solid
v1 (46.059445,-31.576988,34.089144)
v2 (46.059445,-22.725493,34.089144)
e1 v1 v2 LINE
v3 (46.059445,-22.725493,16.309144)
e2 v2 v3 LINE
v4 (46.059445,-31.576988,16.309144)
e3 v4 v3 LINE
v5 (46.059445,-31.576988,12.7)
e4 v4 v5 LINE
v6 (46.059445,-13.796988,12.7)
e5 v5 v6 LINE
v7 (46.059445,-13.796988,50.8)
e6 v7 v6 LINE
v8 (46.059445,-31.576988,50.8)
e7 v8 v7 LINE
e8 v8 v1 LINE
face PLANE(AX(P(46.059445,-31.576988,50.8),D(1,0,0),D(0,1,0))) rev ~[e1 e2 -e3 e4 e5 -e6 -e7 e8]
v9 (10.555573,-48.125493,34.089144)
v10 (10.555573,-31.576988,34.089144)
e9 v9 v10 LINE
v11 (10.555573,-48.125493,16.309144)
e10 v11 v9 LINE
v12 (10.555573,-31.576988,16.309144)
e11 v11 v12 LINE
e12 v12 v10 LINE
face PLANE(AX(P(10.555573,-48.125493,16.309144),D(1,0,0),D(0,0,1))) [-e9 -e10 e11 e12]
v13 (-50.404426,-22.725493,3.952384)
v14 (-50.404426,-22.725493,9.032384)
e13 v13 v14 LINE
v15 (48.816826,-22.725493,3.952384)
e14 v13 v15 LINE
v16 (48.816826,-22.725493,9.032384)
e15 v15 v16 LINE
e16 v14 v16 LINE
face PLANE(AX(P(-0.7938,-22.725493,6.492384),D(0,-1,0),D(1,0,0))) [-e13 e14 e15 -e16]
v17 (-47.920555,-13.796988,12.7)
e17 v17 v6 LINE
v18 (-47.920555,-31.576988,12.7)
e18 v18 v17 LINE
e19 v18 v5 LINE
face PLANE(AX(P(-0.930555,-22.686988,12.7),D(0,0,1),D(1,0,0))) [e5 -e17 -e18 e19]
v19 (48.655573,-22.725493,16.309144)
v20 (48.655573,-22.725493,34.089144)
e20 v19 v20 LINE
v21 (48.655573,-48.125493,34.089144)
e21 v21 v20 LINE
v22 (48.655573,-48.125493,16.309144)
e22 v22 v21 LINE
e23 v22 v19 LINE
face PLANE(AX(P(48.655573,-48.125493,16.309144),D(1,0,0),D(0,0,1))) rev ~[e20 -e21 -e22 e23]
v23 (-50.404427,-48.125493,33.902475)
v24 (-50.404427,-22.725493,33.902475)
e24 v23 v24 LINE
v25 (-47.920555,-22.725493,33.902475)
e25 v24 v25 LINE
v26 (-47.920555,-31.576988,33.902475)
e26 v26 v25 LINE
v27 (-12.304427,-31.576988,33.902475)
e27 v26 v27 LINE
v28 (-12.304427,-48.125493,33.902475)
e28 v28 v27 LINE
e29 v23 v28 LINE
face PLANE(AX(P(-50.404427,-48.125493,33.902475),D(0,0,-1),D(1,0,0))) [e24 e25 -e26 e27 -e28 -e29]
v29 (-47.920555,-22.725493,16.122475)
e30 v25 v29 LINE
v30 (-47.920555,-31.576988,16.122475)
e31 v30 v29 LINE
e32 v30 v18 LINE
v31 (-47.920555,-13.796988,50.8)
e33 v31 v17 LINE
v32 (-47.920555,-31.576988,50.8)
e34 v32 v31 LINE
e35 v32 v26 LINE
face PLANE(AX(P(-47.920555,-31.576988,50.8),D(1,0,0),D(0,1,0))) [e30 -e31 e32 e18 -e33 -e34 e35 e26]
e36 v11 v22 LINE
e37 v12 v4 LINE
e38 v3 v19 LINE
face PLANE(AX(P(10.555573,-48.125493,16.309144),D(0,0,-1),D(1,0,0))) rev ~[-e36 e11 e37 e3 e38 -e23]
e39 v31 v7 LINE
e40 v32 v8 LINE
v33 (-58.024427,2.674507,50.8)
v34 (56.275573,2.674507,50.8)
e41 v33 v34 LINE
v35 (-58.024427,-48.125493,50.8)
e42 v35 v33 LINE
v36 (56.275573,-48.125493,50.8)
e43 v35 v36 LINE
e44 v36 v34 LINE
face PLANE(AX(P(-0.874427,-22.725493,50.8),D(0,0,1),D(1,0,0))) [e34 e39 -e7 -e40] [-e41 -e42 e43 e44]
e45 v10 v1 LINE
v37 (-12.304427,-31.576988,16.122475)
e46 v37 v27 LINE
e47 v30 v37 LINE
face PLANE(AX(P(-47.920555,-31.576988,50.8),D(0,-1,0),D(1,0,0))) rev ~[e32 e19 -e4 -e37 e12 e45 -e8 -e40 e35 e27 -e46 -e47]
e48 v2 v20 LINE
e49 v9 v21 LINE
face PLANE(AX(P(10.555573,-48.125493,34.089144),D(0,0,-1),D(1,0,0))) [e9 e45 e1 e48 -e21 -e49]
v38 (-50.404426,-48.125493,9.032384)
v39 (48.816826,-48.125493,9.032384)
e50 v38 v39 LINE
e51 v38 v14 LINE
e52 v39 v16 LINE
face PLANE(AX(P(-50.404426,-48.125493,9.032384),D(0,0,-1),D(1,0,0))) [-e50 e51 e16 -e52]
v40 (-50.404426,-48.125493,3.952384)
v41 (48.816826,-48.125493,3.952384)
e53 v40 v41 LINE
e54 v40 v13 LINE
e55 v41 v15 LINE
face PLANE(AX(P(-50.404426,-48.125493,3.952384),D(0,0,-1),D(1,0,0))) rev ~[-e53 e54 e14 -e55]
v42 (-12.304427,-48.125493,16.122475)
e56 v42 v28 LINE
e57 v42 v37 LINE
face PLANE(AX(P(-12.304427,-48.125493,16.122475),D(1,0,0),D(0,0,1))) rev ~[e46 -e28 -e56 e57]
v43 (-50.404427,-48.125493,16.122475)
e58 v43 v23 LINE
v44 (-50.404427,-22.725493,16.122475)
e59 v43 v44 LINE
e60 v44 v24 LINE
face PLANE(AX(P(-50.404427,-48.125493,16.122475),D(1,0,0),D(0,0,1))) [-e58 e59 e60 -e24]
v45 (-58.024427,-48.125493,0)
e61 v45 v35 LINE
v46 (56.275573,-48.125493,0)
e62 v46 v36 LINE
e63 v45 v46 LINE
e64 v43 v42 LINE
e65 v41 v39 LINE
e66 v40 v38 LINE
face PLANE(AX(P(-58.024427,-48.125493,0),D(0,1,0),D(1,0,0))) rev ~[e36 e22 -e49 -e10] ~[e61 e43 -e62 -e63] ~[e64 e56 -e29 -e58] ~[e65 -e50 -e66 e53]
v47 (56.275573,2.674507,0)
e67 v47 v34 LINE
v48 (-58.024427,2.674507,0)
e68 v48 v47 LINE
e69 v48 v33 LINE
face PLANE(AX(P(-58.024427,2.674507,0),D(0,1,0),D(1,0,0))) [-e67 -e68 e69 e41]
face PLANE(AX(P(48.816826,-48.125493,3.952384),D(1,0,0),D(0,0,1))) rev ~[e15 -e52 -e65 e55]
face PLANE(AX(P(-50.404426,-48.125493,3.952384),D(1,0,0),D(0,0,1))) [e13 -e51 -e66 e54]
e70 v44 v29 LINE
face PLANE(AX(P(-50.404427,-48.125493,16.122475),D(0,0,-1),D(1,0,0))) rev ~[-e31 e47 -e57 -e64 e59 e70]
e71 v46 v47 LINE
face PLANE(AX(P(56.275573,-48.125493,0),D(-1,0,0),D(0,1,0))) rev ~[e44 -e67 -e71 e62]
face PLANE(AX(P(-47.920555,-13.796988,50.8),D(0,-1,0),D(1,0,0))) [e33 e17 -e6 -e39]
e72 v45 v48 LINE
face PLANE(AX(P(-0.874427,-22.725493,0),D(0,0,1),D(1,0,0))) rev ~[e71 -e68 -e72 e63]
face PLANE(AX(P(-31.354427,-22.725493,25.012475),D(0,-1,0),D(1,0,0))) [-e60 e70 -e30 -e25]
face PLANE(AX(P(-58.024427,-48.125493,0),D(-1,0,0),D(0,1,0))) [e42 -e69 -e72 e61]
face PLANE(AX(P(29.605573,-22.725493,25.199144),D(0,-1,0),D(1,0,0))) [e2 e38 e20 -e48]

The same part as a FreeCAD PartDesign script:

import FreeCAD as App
import Part
import Sketcher
from FreeCAD import Vector
Q = App.Units.Quantity


def add_polygon(sketch, points):
    """Adds a closed chain of lines whose ends are joined by coincident constraints."""
    first, n = sketch.GeometryCount, len(points)
    for a, b in zip(points, points[1:] + points[:1]):
        sketch.addGeometry(Part.LineSegment(App.Vector(*a, 0), App.Vector(*b, 0)), False)
    for i in range(n):
        sketch.addConstraint(Sketcher.Constraint("Coincident", first + i, 2, first + (i + 1) % n, 1))

doc = App.newDocument("Part")
params = doc.addObject("Spreadsheet::Sheet", "Params")
for row, (alias, value) in enumerate([
    ("sketch1_height", "2 in"),
    ("sketch1_width", "4.5 in"),
    ("pad1_length", "2 in"),
    ("sketch2_width", "3.7 in"),
    ("sketch2_height", "0.7 in"),
    ("pocket1_length", "1.5 in"),
    ("sketch3_width", "1.5 in"),
    ("sketch3_height", "0.7 in"),
    ("sketch3_height2", "0.2 in"),
    ("pocket2_length", "1 in"),
    ("sketch4_width", "1.5 in"),
    ("sketch4_height", "0.7 in"),
    ("sketch4_height2", "0.2 in"),
    ("pocket3_length", "1 in"),
], start=1):
    params.set(f"A{row}", alias)
    params.set(f"B{row}", "=" + value)
    params.setAlias(f"B{row}", alias)

body = doc.addObject("PartDesign::Body", "Body")

# Sketch on XY plane
sketch1 = body.newObject("Sketcher::SketchObject", "Sketch")
sketch1.AttachmentSupport = (doc.getObject("XY_Plane"), [""])
sketch1.MapMode = "FlatFace"
add_polygon(sketch1, [(-58, 3), (-58, -48), (56, -48), (56, 3)])  # lines 0-3
sketch1.addConstraint([
    Sketcher.Constraint("Vertical", 0),
    Sketcher.Constraint("Horizontal", 1),
    Sketcher.Constraint("Vertical", 2),
    Sketcher.Constraint("Horizontal", 3),
    Sketcher.Constraint("DistanceY", 0, 2, 0, 1, Q("2 in")),
    Sketcher.Constraint("DistanceX", 1, 1, 1, 2, Q("4.5 in")),
    Sketcher.Constraint("DistanceX", 0, 2, -1, 1, 58.024427),
    Sketcher.Constraint("DistanceY", 0, 2, -1, 1, 48.125493),
])
sketch1.setExpression("Constraints[8]", "Params.sketch1_height")
sketch1.setExpression("Constraints[9]", "Params.sketch1_width")
pad1 = body.newObject("PartDesign::Pad", "Pad")
pad1.Profile = sketch1
pad1.setExpression("Length", "Params.pad1_length")

# Sketch on XY plane
sketch2 = body.newObject("Sketcher::SketchObject", "Sketch001")
sketch2.AttachmentSupport = (doc.getObject("XY_Plane"), [""])
sketch2.MapMode = "FlatFace"
sketch2.AttachmentOffset = App.Placement(Vector(0, 0, 2 * 25.4), App.Rotation())
add_polygon(sketch2, [(-48, -14), (-48, -32), (46, -32), (46, -14)])  # lines 0-3
sketch2.addConstraint([
    Sketcher.Constraint("Vertical", 0),
    Sketcher.Constraint("Horizontal", 1),
    Sketcher.Constraint("Vertical", 2),
    Sketcher.Constraint("Horizontal", 3),
    Sketcher.Constraint("DistanceX", 1, 1, 1, 2, Q("3.7 in")),
    Sketcher.Constraint("DistanceY", 0, 2, 0, 1, Q("0.7 in")),
    Sketcher.Constraint("DistanceY", 0, 2, -1, 1, 31.576988),
    Sketcher.Constraint("DistanceX", 0, 2, -1, 1, 47.920555),
])
sketch2.setExpression("Constraints[8]", "Params.sketch2_width")
sketch2.setExpression("Constraints[9]", "Params.sketch2_height")
pocket1 = body.newObject("PartDesign::Pocket", "Pocket")
pocket1.Profile = sketch2
pocket1.setExpression("Length", "Params.pocket1_length")

# Sketch on XZ plane
sketch3 = body.newObject("Sketcher::SketchObject", "Sketch002")
sketch3.AttachmentSupport = (doc.getObject("XZ_Plane"), [""])
sketch3.MapMode = "FlatFace"
sketch3.AttachmentOffset = App.Placement(Vector(0, 0, 48.125493), App.Rotation())
add_polygon(sketch3, [(11, 34), (11, 16), (49, 16), (49, 34)])  # lines 0-3
add_polygon(sketch3, [(-50, 34), (-50, 16), (-12, 16), (-12, 34)])  # lines 4-7
add_polygon(sketch3, [(-50, 9), (-50, 4), (49, 4), (49, 9)])  # lines 8-11
sketch3.addConstraint([
    Sketcher.Constraint("Vertical", 0),
    Sketcher.Constraint("Horizontal", 1),
    Sketcher.Constraint("Vertical", 2),
    Sketcher.Constraint("Horizontal", 3),
    Sketcher.Constraint("Vertical", 4),
    Sketcher.Constraint("Horizontal", 5),
    Sketcher.Constraint("Vertical", 6),
    Sketcher.Constraint("Horizontal", 7),
    Sketcher.Constraint("Vertical", 8),
    Sketcher.Constraint("Horizontal", 9),
    Sketcher.Constraint("Vertical", 10),
    Sketcher.Constraint("Horizontal", 11),
    Sketcher.Constraint("Vertical", 7, 2, 8, 2),
    Sketcher.Constraint("Equal", 3, 5),
    Sketcher.Constraint("Equal", 2, 4),
    Sketcher.Constraint("DistanceX", 1, 1, 1, 2, Q("1.5 in")),
    Sketcher.Constraint("DistanceY", 0, 2, 0, 1, Q("0.7 in")),
    Sketcher.Constraint("DistanceY", 8, 2, 8, 1, Q("0.2 in")),
    Sketcher.Constraint("DistanceX", 4, 2, 0, 2, Q("2.4 in")),
    Sketcher.Constraint("DistanceX", 9, 1, 9, 2, 99.221253),
    Sketcher.Constraint("DistanceY", 4, 2, 0, 2, 0.186669),
    Sketcher.Constraint("DistanceY", 8, 2, 4, 2, 12.170091),
    Sketcher.Constraint("DistanceX", -1, 1, 0, 2, 10.555573),
    Sketcher.Constraint("DistanceY", -1, 1, 0, 2, 16.309144),
])
sketch3.setExpression("Constraints[27]", "Params.sketch3_width")
sketch3.setExpression("Constraints[28]", "Params.sketch3_height")
sketch3.setExpression("Constraints[29]", "Params.sketch3_height2")
pocket2 = body.newObject("PartDesign::Pocket", "Pocket001")
pocket2.Profile = sketch3
pocket2.setExpression("Length", "Params.pocket2_length")

# Sketch on XZ plane
sketch4 = body.newObject("Sketcher::SketchObject", "Sketch003")
sketch4.AttachmentSupport = (doc.getObject("XZ_Plane"), [""])
sketch4.MapMode = "FlatFace"
sketch4.AttachmentOffset = App.Placement(Vector(0, 0, 48.125493), App.Rotation())
add_polygon(sketch4, [(11, 34), (11, 16), (49, 16), (49, 34)])  # lines 0-3
add_polygon(sketch4, [(-50, 34), (-50, 16), (-12, 16), (-12, 34)])  # lines 4-7
add_polygon(sketch4, [(-50, 9), (-50, 4), (49, 4), (49, 9)])  # lines 8-11
sketch4.addConstraint([
    Sketcher.Constraint("Vertical", 0),
    Sketcher.Constraint("Horizontal", 1),
    Sketcher.Constraint("Vertical", 2),
    Sketcher.Constraint("Horizontal", 3),
    Sketcher.Constraint("Vertical", 4),
    Sketcher.Constraint("Horizontal", 5),
    Sketcher.Constraint("Vertical", 6),
    Sketcher.Constraint("Horizontal", 7),
    Sketcher.Constraint("Vertical", 8),
    Sketcher.Constraint("Horizontal", 9),
    Sketcher.Constraint("Vertical", 10),
    Sketcher.Constraint("Horizontal", 11),
    Sketcher.Constraint("Vertical", 7, 2, 8, 2),
    Sketcher.Constraint("Equal", 3, 5),
    Sketcher.Constraint("Equal", 2, 4),
    Sketcher.Constraint("DistanceX", 1, 1, 1, 2, Q("1.5 in")),
    Sketcher.Constraint("DistanceY", 0, 2, 0, 1, Q("0.7 in")),
    Sketcher.Constraint("DistanceY", 8, 2, 8, 1, Q("0.2 in")),
    Sketcher.Constraint("DistanceX", 4, 2, 0, 2, Q("2.4 in")),
    Sketcher.Constraint("DistanceX", 9, 1, 9, 2, 99.221253),
    Sketcher.Constraint("DistanceY", 4, 2, 0, 2, 0.186669),
    Sketcher.Constraint("DistanceY", 8, 2, 4, 2, 12.170091),
    Sketcher.Constraint("DistanceX", -1, 1, 0, 2, 10.555573),
    Sketcher.Constraint("DistanceY", -1, 1, 0, 2, 16.309144),
])
sketch4.setExpression("Constraints[27]", "Params.sketch4_width")
sketch4.setExpression("Constraints[28]", "Params.sketch4_height")
sketch4.setExpression("Constraints[29]", "Params.sketch4_height2")
pocket3 = body.newObject("PartDesign::Pocket", "Pocket002")
pocket3.Profile = sketch4
pocket3.setExpression("Length", "Params.pocket3_length")

doc.recompute()
